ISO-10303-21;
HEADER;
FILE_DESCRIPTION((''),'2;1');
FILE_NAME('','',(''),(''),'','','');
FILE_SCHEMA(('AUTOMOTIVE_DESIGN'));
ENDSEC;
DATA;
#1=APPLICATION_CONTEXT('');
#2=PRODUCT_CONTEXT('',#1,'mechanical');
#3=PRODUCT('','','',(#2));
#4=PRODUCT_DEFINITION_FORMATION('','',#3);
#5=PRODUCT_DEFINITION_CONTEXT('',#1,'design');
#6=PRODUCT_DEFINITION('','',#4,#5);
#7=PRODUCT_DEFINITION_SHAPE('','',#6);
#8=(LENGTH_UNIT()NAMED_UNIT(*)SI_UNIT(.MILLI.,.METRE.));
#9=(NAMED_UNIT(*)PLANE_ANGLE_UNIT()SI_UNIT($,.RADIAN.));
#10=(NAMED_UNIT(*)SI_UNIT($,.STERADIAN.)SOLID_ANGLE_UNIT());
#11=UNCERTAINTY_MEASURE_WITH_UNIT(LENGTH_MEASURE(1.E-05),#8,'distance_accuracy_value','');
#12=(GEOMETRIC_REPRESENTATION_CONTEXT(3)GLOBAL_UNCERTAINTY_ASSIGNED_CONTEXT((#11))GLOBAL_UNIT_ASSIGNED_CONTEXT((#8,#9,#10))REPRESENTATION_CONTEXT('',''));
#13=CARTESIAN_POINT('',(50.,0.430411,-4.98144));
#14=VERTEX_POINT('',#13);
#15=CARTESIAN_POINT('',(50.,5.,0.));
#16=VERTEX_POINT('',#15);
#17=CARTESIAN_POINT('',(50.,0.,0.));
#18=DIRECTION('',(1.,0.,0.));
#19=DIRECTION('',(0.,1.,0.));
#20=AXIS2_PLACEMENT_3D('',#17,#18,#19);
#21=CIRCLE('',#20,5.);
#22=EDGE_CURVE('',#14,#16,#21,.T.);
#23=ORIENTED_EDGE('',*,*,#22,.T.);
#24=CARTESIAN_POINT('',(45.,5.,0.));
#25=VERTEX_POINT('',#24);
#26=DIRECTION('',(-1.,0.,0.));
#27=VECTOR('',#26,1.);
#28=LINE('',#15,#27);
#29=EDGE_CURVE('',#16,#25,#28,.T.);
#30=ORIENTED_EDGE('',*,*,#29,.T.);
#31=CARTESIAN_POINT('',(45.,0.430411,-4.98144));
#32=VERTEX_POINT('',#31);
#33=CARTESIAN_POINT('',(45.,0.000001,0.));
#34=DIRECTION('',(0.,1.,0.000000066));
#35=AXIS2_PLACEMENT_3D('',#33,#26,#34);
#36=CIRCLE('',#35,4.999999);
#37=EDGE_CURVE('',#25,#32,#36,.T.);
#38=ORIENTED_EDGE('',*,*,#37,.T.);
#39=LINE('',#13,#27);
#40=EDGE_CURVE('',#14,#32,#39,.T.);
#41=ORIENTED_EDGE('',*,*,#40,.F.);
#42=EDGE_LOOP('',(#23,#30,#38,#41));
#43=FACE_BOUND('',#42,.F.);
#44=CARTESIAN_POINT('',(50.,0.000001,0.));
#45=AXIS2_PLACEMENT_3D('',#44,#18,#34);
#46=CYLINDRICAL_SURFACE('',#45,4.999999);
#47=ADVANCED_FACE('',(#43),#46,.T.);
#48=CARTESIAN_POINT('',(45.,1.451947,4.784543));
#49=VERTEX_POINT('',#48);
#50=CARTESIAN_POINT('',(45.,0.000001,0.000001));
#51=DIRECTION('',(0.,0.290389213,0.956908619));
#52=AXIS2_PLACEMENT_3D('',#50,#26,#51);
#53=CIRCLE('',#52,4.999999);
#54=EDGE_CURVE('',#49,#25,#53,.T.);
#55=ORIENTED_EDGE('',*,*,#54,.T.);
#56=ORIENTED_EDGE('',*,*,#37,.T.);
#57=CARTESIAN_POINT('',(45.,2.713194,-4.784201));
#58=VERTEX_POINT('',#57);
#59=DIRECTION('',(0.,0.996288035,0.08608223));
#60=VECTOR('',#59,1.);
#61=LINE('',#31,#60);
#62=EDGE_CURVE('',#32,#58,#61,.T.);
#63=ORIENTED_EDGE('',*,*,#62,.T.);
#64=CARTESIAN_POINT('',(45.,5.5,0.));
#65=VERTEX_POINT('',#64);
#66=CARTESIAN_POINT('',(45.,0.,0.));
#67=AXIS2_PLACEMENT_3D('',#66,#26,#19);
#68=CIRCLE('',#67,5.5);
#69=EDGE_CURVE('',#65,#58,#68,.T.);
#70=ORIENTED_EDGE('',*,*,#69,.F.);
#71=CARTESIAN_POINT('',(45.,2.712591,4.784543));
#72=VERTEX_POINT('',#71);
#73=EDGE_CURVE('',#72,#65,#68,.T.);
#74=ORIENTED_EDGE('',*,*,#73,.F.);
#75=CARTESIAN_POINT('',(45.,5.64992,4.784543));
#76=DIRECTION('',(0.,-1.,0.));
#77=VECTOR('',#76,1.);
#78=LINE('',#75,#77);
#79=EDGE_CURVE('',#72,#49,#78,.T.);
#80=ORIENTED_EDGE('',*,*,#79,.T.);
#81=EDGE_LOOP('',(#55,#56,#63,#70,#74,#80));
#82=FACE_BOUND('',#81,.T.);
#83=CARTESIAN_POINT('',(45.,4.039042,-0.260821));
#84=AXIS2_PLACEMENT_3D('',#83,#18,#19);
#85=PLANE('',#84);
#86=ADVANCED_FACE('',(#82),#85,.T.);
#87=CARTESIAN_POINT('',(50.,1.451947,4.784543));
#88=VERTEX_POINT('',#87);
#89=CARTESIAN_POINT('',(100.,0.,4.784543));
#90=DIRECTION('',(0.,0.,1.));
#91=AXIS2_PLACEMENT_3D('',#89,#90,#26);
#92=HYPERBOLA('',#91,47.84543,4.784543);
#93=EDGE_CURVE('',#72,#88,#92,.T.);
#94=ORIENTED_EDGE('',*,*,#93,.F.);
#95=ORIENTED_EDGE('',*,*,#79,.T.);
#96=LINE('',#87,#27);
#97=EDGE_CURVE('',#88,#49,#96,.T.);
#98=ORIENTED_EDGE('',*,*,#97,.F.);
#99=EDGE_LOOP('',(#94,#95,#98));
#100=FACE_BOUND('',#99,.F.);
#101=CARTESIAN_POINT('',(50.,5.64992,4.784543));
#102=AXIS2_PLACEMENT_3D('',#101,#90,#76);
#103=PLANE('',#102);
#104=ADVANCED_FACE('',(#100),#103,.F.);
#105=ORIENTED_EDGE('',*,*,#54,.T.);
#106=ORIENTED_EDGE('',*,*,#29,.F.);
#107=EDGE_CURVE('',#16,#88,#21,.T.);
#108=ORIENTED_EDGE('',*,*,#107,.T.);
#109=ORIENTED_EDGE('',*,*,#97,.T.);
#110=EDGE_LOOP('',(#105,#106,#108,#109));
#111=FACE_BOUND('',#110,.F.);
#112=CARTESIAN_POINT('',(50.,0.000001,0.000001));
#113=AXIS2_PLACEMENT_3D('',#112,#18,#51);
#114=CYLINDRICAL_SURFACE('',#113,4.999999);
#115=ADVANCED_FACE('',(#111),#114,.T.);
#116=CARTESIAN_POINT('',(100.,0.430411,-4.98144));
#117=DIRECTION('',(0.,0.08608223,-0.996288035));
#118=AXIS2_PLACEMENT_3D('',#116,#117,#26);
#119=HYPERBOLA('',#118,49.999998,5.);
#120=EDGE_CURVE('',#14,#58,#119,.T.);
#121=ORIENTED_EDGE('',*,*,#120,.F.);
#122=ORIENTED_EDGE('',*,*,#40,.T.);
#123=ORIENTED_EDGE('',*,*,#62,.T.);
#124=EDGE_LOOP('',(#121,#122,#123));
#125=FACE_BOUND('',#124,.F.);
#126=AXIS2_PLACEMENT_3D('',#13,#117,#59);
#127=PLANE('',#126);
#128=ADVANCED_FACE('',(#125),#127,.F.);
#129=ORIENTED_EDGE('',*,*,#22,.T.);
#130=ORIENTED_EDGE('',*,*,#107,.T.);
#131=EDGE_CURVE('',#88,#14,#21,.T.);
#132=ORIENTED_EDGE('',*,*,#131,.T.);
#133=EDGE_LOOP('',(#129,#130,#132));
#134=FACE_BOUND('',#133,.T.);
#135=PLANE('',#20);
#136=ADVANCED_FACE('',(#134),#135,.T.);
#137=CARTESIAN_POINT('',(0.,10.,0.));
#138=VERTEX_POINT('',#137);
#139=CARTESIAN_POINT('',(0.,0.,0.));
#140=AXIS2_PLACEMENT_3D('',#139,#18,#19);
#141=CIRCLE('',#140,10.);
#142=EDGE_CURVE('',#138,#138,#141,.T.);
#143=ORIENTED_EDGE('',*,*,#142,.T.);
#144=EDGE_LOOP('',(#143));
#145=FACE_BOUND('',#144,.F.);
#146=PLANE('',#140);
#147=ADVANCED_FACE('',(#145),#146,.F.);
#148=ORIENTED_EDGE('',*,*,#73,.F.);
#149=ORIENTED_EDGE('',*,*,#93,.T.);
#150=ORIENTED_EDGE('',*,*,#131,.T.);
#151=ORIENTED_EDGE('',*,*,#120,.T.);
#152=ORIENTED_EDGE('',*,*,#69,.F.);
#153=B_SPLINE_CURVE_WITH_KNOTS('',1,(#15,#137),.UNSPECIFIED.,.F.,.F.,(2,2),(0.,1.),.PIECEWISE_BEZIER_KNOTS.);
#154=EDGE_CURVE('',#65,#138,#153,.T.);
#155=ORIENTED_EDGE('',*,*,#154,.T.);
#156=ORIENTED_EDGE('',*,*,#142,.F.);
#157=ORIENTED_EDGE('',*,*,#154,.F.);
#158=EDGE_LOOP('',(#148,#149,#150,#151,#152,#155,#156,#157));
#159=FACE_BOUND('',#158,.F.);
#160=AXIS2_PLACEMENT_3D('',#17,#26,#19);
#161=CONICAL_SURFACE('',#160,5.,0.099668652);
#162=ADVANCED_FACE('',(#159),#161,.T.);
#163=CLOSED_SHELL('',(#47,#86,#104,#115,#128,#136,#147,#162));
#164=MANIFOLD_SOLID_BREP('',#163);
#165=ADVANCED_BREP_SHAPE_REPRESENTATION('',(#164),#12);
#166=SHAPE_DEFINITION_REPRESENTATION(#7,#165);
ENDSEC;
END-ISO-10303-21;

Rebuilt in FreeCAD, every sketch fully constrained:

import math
import FreeCAD as App
import Part
import Sketcher

V = App.Vector

doc = App.newDocument("Part")
body = doc.addObject("PartDesign::Body", "Body")

sketch1 = body.newObject("Sketcher::SketchObject", "Sketch")
sketch1.AttachmentSupport = (doc.getObject("YZ_Plane"), [""])
sketch1.MapMode = "FlatFace"
sketch1.AttachmentOffset = App.Placement(V(0, 0, 50), App.Rotation())
sketch1.addGeometry(Part.Circle(V(0, 0, 0), V(0, 0, 1), 5), False)
sketch1.addConstraint([
    Sketcher.Constraint("Coincident", 0, 3, -1, 1),
    Sketcher.Constraint("Diameter", 0, 10.0),
])

sketch2 = body.newObject("Sketcher::SketchObject", "Sketch001")
sketch2.AttachmentSupport = (doc.getObject("YZ_Plane"), [""])
sketch2.MapMode = "FlatFace"
sketch2.addGeometry(Part.Circle(V(0, 0, 0), V(0, 0, 1), 10), False)
sketch2.addConstraint([
    Sketcher.Constraint("Coincident", 0, 3, -1, 1),
    Sketcher.Constraint("Diameter", 0, 20.0),
])

additiveloft = body.newObject("PartDesign::AdditiveLoft", "AdditiveLoft")
additiveloft.Profile = sketch1
additiveloft.Sections = [sketch2]

sketch3 = body.newObject("Sketcher::SketchObject", "Sketch002")
sketch3.AttachmentSupport = (doc.getObject("YZ_Plane"), [""])
sketch3.MapMode = "FlatFace"
sketch3.AttachmentOffset = App.Placement(V(0, 0, 50), App.Rotation())
sketch3.addGeometry([
    Part.LineSegment(V(5.6, 4.8, 0), V(1.5, 4.8, 0)),
    Part.ArcOfCircle(Part.Circle(V(0, 0, 0), V(0, 0, 1), 5), math.radians(0), math.radians(73)),
    Part.ArcOfCircle(Part.Circle(V(0, 0, 0), V(0, 0, 1), 5), math.radians(-85), math.radians(0)),
    Part.LineSegment(V(0.4, -5, 0), V(5.6, -4.5, 0)),
    Part.LineSegment(V(5.6, -4.5, 0), V(5.6, 4.8, 0)),
], False)
sketch3.addConstraint([
    Sketcher.Constraint("Coincident", 0, 2, 1, 2),
    Sketcher.Constraint("Tangent", 1, 1, 2, 2),
    Sketcher.Constraint("Tangent", 2, 1, 3, 1),
    Sketcher.Constraint("Coincident", 3, 2, 4, 1),
    Sketcher.Constraint("Coincident", 4, 2, 0, 1),
    Sketcher.Constraint("Horizontal", 0),
    Sketcher.Constraint("Vertical", 4),
    Sketcher.Constraint("Coincident", 1, 3, -1, 1),
    Sketcher.Constraint("Equal", 1, 2),
    Sketcher.Constraint("PointOnObject", 1, 1, -1),
    Sketcher.Constraint("Radius", 1, 4.999999),
    Sketcher.Constraint("DistanceX", 0, 2, 0, 1, 4.197973),
    Sketcher.Constraint("DistanceY", 4, 1, 4, 2, 9.315002),
    Sketcher.Constraint("DistanceX", -1, 1, 2, 1, 0.430411),
])
pocket1 = body.newObject("PartDesign::Pocket", "Pocket")
pocket1.Profile = sketch3
pocket1.Length = 5

doc.recompute()
